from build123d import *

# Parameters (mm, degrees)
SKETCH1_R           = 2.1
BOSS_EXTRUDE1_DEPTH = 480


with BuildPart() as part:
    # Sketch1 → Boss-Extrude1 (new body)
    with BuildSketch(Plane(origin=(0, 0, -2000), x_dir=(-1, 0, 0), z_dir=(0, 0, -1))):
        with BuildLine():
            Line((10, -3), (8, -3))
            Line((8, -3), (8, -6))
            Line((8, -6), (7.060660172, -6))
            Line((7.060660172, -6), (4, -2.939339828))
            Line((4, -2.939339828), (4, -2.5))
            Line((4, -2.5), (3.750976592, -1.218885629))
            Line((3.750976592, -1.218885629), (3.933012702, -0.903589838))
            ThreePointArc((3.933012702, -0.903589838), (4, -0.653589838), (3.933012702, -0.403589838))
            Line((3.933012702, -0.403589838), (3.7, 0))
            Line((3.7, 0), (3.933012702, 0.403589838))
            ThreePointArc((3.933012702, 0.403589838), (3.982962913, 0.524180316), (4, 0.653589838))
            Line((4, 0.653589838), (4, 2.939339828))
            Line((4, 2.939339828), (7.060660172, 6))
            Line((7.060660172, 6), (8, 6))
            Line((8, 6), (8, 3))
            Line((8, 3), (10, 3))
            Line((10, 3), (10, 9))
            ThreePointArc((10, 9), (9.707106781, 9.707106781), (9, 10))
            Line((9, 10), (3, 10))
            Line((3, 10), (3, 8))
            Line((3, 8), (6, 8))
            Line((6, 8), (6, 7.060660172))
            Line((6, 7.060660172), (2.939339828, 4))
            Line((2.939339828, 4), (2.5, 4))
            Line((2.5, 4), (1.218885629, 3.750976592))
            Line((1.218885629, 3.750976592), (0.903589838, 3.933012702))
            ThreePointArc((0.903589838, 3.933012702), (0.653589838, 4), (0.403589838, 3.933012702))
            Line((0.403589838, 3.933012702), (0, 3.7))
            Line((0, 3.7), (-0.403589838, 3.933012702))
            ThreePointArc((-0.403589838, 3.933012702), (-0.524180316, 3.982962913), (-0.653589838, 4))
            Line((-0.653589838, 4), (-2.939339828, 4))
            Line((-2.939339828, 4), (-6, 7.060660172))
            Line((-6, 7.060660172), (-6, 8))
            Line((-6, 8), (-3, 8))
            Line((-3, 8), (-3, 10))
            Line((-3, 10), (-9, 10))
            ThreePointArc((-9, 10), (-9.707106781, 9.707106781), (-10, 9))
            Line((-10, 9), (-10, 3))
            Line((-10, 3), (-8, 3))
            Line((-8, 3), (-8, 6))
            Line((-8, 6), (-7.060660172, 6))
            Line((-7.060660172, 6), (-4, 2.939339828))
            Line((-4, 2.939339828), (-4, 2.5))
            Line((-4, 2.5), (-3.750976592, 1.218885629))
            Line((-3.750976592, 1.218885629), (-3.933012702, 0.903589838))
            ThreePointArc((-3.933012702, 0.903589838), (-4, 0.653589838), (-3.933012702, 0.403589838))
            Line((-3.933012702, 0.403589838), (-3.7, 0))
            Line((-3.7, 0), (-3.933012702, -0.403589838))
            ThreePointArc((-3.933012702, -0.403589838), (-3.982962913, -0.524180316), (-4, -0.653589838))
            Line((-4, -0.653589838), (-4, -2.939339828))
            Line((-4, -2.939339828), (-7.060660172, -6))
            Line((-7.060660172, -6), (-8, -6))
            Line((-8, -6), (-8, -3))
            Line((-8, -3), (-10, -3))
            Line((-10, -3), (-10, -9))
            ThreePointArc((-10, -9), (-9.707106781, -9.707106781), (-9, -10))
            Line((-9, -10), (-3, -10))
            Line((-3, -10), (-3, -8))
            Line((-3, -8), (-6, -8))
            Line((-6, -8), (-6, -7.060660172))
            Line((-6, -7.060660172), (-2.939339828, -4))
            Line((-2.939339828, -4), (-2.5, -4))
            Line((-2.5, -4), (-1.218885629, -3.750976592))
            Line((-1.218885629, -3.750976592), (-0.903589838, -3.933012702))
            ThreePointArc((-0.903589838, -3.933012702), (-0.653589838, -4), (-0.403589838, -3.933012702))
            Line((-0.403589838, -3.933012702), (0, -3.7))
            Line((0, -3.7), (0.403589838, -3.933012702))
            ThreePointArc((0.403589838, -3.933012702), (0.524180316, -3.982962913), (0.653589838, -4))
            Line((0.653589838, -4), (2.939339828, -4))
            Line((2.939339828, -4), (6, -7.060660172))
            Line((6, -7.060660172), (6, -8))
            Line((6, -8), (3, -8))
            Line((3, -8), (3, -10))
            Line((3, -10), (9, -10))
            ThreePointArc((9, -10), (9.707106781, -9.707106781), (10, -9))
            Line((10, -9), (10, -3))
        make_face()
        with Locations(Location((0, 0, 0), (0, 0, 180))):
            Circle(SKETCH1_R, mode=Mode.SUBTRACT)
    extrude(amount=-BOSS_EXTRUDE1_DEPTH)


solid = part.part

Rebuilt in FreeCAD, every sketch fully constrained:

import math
import FreeCAD as App
import Part
import Sketcher

V = App.Vector
Q = App.Units.Quantity

doc = App.newDocument("Part")
body = doc.addObject("PartDesign::Body", "Body")

sketch1 = body.newObject("Sketcher::SketchObject", "Sketch")
sketch1.AttachmentSupport = (doc.getObject("XY_Plane"), [""])
sketch1.MapMode = "FlatFace"
sketch1.AttachmentOffset = App.Placement(V(0, 0, -2000), App.Rotation())
sketch1.addGeometry([
    Part.LineSegment(V(-10, -3, 0), V(-8, -3, 0)),
    Part.LineSegment(V(-8, -3, 0), V(-8, -6, 0)),
    Part.LineSegment(V(-8, -6, 0), V(-7.06, -6, 0)),
    Part.LineSegment(V(-7.06, -6, 0), V(-4, -2.94, 0)),
    Part.LineSegment(V(-4, -2.94, 0), V(-4, -2.5, 0)),
    Part.LineSegment(V(-4, -2.5, 0), V(-3.75, -1.22, 0)),
    Part.LineSegment(V(-3.75, -1.22, 0), V(-3.93, -0.9, 0)),
    Part.ArcOfCircle(Part.Circle(V(-3.5, -0.65, 0), V(0, 0, 1), 0.5), math.radians(150), math.radians(210)),
    Part.LineSegment(V(-3.93, -0.4, 0), V(-3.7, 0, 0)),
    Part.LineSegment(V(-3.7, 0, 0), V(-3.93, 0.4, 0)),
    Part.ArcOfCircle(Part.Circle(V(-3.5, 0.65, 0), V(0, 0, 1), 0.5), math.radians(-180), math.radians(-150)),
    Part.LineSegment(V(-4, 0.65, 0), V(-4, 2.94, 0)),
    Part.LineSegment(V(-4, 2.94, 0), V(-7.06, 6, 0)),
    Part.LineSegment(V(-7.06, 6, 0), V(-8, 6, 0)),
    Part.LineSegment(V(-8, 6, 0), V(-8, 3, 0)),
    Part.LineSegment(V(-8, 3, 0), V(-10, 3, 0)),
    Part.LineSegment(V(-10, 3, 0), V(-10, 9, 0)),
    Part.ArcOfCircle(Part.Circle(V(-9, 9, 0), V(0, 0, 1), 1), math.radians(90), math.radians(180)),
    Part.LineSegment(V(-9, 10, 0), V(-3, 10, 0)),
    Part.LineSegment(V(-3, 10, 0), V(-3, 8, 0)),
    Part.LineSegment(V(-3, 8, 0), V(-6, 8, 0)),
    Part.LineSegment(V(-6, 8, 0), V(-6, 7.06, 0)),
    Part.LineSegment(V(-6, 7.06, 0), V(-2.94, 4, 0)),
    Part.LineSegment(V(-2.94, 4, 0), V(-2.5, 4, 0)),
    Part.LineSegment(V(-2.5, 4, 0), V(-1.22, 3.75, 0)),
    Part.LineSegment(V(-1.22, 3.75, 0), V(-0.9, 3.93, 0)),
    Part.ArcOfCircle(Part.Circle(V(-0.65, 3.5, 0), V(0, 0, 1), 0.5), math.radians(60), math.radians(120)),
    Part.LineSegment(V(-0.4, 3.93, 0), V(0, 3.7, 0)),
    Part.LineSegment(V(0, 3.7, 0), V(0.4, 3.93, 0)),
    Part.ArcOfCircle(Part.Circle(V(0.65, 3.5, 0), V(0, 0, 1), 0.5), math.radians(90), math.radians(120)),
    Part.LineSegment(V(0.65, 4, 0), V(2.94, 4, 0)),
    Part.LineSegment(V(2.94, 4, 0), V(6, 7.06, 0)),
    Part.LineSegment(V(6, 7.06, 0), V(6, 8, 0)),
    Part.LineSegment(V(6, 8, 0), V(3, 8, 0)),
    Part.LineSegment(V(3, 8, 0), V(3, 10, 0)),
    Part.LineSegment(V(3, 10, 0), V(9, 10, 0)),
    Part.ArcOfCircle(Part.Circle(V(9, 9, 0), V(0, 0, 1), 1), math.radians(0), math.radians(90)),
    Part.LineSegment(V(10, 9, 0), V(10, 3, 0)),
    Part.LineSegment(V(10, 3, 0), V(8, 3, 0)),
    Part.LineSegment(V(8, 3, 0), V(8, 6, 0)),
    Part.LineSegment(V(8, 6, 0), V(7.06, 6, 0)),
    Part.LineSegment(V(7.06, 6, 0), V(4, 2.94, 0)),
    Part.LineSegment(V(4, 2.94, 0), V(4, 2.5, 0)),
    Part.LineSegment(V(4, 2.5, 0), V(3.75, 1.22, 0)),
    Part.LineSegment(V(3.75, 1.22, 0), V(3.93, 0.9, 0)),
    Part.ArcOfCircle(Part.Circle(V(3.5, 0.65, 0), V(0, 0, 1), 0.5), math.radians(-30), math.radians(30)),
    Part.LineSegment(V(3.93, 0.4, 0), V(3.7, 0, 0)),
    Part.LineSegment(V(3.7, 0, 0), V(3.93, -0.4, 0)),
    Part.ArcOfCircle(Part.Circle(V(3.5, -0.65, 0), V(0, 0, 1), 0.5), math.radians(0), math.radians(30)),
    Part.LineSegment(V(4, -0.65, 0), V(4, -2.94, 0)),
    Part.LineSegment(V(4, -2.94, 0), V(7.06, -6, 0)),
    Part.LineSegment(V(7.06, -6, 0), V(8, -6, 0)),
    Part.LineSegment(V(8, -6, 0), V(8, -3, 0)),
    Part.LineSegment(V(8, -3, 0), V(10, -3, 0)),
    Part.LineSegment(V(10, -3, 0), V(10, -9, 0)),
    Part.ArcOfCircle(Part.Circle(V(9, -9, 0), V(0, 0, 1), 1), math.radians(-90), math.radians(0)),
    Part.LineSegment(V(9, -10, 0), V(3, -10, 0)),
    Part.LineSegment(V(3, -10, 0), V(3, -8, 0)),
    Part.LineSegment(V(3, -8, 0), V(6, -8, 0)),
    Part.LineSegment(V(6, -8, 0), V(6, -7.06, 0)),
    Part.LineSegment(V(6, -7.06, 0), V(2.94, -4, 0)),
    Part.LineSegment(V(2.94, -4, 0), V(2.5, -4, 0)),
    Part.LineSegment(V(2.5, -4, 0), V(1.22, -3.75, 0)),
    Part.LineSegment(V(1.22, -3.75, 0), V(0.9, -3.93, 0)),
    Part.ArcOfCircle(Part.Circle(V(0.65, -3.5, 0), V(0, 0, 1), 0.5), math.radians(-120), math.radians(-60)),
    Part.LineSegment(V(0.4, -3.93, 0), V(0, -3.7, 0)),
    Part.LineSegment(V(0, -3.7, 0), V(-0.4, -3.93, 0)),
    Part.ArcOfCircle(Part.Circle(V(-0.65, -3.5, 0), V(0, 0, 1), 0.5), math.radians(-90), math.radians(-60)),
    Part.LineSegment(V(-0.65, -4, 0), V(-2.94, -4, 0)),
    Part.LineSegment(V(-2.94, -4, 0), V(-6, -7.06, 0)),
    Part.LineSegment(V(-6, -7.06, 0), V(-6, -8, 0)),
    Part.LineSegment(V(-6, -8, 0), V(-3, -8, 0)),
    Part.LineSegment(V(-3, -8, 0), V(-3, -10, 0)),
    Part.LineSegment(V(-3, -10, 0), V(-9, -10, 0)),
    Part.ArcOfCircle(Part.Circle(V(-9, -9, 0), V(0, 0, 1), 1), math.radians(-180), math.radians(-90)),
    Part.LineSegment(V(-10, -9, 0), V(-10, -3, 0)),
    Part.Circle(V(0, 0, 0), V(0, 0, 1), 2.1),
], False)
sketch1.addConstraint([
    Sketcher.Constraint("Coincident", 0, 2, 1, 1),
    Sketcher.Constraint("Coincident", 1, 2, 2, 1),
    Sketcher.Constraint("Coincident", 2, 2, 3, 1),
    Sketcher.Constraint("Coincident", 3, 2, 4, 1),
    Sketcher.Constraint("Coincident", 4, 2, 5, 1),
    Sketcher.Constraint("Coincident", 5, 2, 6, 1),
    Sketcher.Constraint("Tangent", 6, 2, 7, 2),
    Sketcher.Constraint("Tangent", 7, 1, 8, 1),
    Sketcher.Constraint("Coincident", 8, 2, 9, 1),
    Sketcher.Constraint("Tangent", 9, 2, 10, 2),
    Sketcher.Constraint("Tangent", 10, 1, 11, 1),
    Sketcher.Constraint("Coincident", 11, 2, 12, 1),
    Sketcher.Constraint("Coincident", 12, 2, 13, 1),
    Sketcher.Constraint("Coincident", 13, 2, 14, 1),
    Sketcher.Constraint("Coincident", 14, 2, 15, 1),
    Sketcher.Constraint("Coincident", 15, 2, 16, 1),
    Sketcher.Constraint("Tangent", 16, 2, 17, 2),
    Sketcher.Constraint("Tangent", 17, 1, 18, 1),
    Sketcher.Constraint("Coincident", 18, 2, 19, 1),
    Sketcher.Constraint("Coincident", 19, 2, 20, 1),
    Sketcher.Constraint("Coincident", 20, 2, 21, 1),
    Sketcher.Constraint("Coincident", 21, 2, 22, 1),
    Sketcher.Constraint("Coincident", 22, 2, 23, 1),
    Sketcher.Constraint("Coincident", 23, 2, 24, 1),
    Sketcher.Constraint("Coincident", 24, 2, 25, 1),
    Sketcher.Constraint("Tangent", 25, 2, 26, 2),
    Sketcher.Constraint("Tangent", 26, 1, 27, 1),
    Sketcher.Constraint("Coincident", 27, 2, 28, 1),
    Sketcher.Constraint("Tangent", 28, 2, 29, 2),
    Sketcher.Constraint("Tangent", 29, 1, 30, 1),
    Sketcher.Constraint("Coincident", 30, 2, 31, 1),
    Sketcher.Constraint("Coincident", 31, 2, 32, 1),
    Sketcher.Constraint("Coincident", 32, 2, 33, 1),
    Sketcher.Constraint("Coincident", 33, 2, 34, 1),
    Sketcher.Constraint("Coincident", 34, 2, 35, 1),
    Sketcher.Constraint("Tangent", 35, 2, 36, 2),
    Sketcher.Constraint("Tangent", 36, 1, 37, 1),
    Sketcher.Constraint("Coincident", 37, 2, 38, 1),
    Sketcher.Constraint("Coincident", 38, 2, 39, 1),
    Sketcher.Constraint("Coincident", 39, 2, 40, 1),
    Sketcher.Constraint("Coincident", 40, 2, 41, 1),
    Sketcher.Constraint("Coincident", 41, 2, 42, 1),
    Sketcher.Constraint("Coincident", 42, 2, 43, 1),
    Sketcher.Constraint("Coincident", 43, 2, 44, 1),
    Sketcher.Constraint("Tangent", 44, 2, 45, 2),
    Sketcher.Constraint("Tangent", 45, 1, 46, 1),
    Sketcher.Constraint("Coincident", 46, 2, 47, 1),
    Sketcher.Constraint("Tangent", 47, 2, 48, 2),
    Sketcher.Constraint("Tangent", 48, 1, 49, 1),
    Sketcher.Constraint("Coincident", 49, 2, 50, 1),
    Sketcher.Constraint("Coincident", 50, 2, 51, 1),
    Sketcher.Constraint("Coincident", 51, 2, 52, 1),
    Sketcher.Constraint("Coincident", 52, 2, 53, 1),
    Sketcher.Constraint("Coincident", 53, 2, 54, 1),
    Sketcher.Constraint("Tangent", 54, 2, 55, 2),
    Sketcher.Constraint("Tangent", 55, 1, 56, 1),
    Sketcher.Constraint("Coincident", 56, 2, 57, 1),
    Sketcher.Constraint("Coincident", 57, 2, 58, 1),
    Sketcher.Constraint("Coincident", 58, 2, 59, 1),
    Sketcher.Constraint("Coincident", 59, 2, 60, 1),
    Sketcher.Constraint("Coincident", 60, 2, 61, 1),
    Sketcher.Constraint("Coincident", 61, 2, 62, 1),
    Sketcher.Constraint("Coincident", 62, 2, 63, 1),
    Sketcher.Constraint("Tangent", 63, 2, 64, 2),
    Sketcher.Constraint("Tangent", 64, 1, 65, 1),
    Sketcher.Constraint("Coincident", 65, 2, 66, 1),
    Sketcher.Constraint("Tangent", 66, 2, 67, 2),
    Sketcher.Constraint("Tangent", 67, 1, 68, 1),
    Sketcher.Constraint("Coincident", 68, 2, 69, 1),
    Sketcher.Constraint("Coincident", 69, 2, 70, 1),
    Sketcher.Constraint("Coincident", 70, 2, 71, 1),
    Sketcher.Constraint("Coincident", 71, 2, 72, 1),
    Sketcher.Constraint("Coincident", 72, 2, 73, 1),
    Sketcher.Constraint("Tangent", 73, 2, 74, 2),
    Sketcher.Constraint("Tangent", 74, 1, 75, 1),
    Sketcher.Constraint("Coincident", 75, 2, 0, 1),
    Sketcher.Constraint("Horizontal", 0),
    Sketcher.Constraint("Vertical", 1),
    Sketcher.Constraint("Horizontal", 2),
    Sketcher.Constraint("Vertical", 4),
    Sketcher.Constraint("Vertical", 11),
    Sketcher.Constraint("Horizontal", 13),
    Sketcher.Constraint("Vertical", 14),
    Sketcher.Constraint("Horizontal", 15),
    Sketcher.Constraint("Vertical", 16),
    Sketcher.Constraint("Horizontal", 18),
    Sketcher.Constraint("Vertical", 19),
    Sketcher.Constraint("Horizontal", 20),
    Sketcher.Constraint("Vertical", 21),
    Sketcher.Constraint("Horizontal", 23),
    Sketcher.Constraint("Horizontal", 30),
    Sketcher.Constraint("Vertical", 32),
    Sketcher.Constraint("Horizontal", 33),
    Sketcher.Constraint("Vertical", 34),
    Sketcher.Constraint("Horizontal", 35),
    Sketcher.Constraint("Vertical", 37),
    Sketcher.Constraint("Horizontal", 38),
    Sketcher.Constraint("Vertical", 39),
    Sketcher.Constraint("Horizontal", 40),
    Sketcher.Constraint("Vertical", 42),
    Sketcher.Constraint("Vertical", 49),
    Sketcher.Constraint("Horizontal", 51),
    Sketcher.Constraint("Vertical", 52),
    Sketcher.Constraint("Horizontal", 53),
    Sketcher.Constraint("Vertical", 54),
    Sketcher.Constraint("Horizontal", 56),
    Sketcher.Constraint("Vertical", 57),
    Sketcher.Constraint("Horizontal", 58),
    Sketcher.Constraint("Vertical", 59),
    Sketcher.Constraint("Horizontal", 61),
    Sketcher.Constraint("Horizontal", 68),
    Sketcher.Constraint("Vertical", 70),
    Sketcher.Constraint("Horizontal", 71),
    Sketcher.Constraint("Vertical", 72),
    Sketcher.Constraint("Horizontal", 73),
    Sketcher.Constraint("Vertical", 75),
    Sketcher.Constraint("Coincident", 76, 3, -1, 1),
    Sketcher.Constraint("Equal", 7, 10),
    Sketcher.Constraint("Equal", 10, 26),
    Sketcher.Constraint("Equal", 26, 29),
    Sketcher.Constraint("Equal", 17, 36),
    Sketcher.Constraint("Equal", 29, 45),
    Sketcher.Constraint("Equal", 45, 48),
    Sketcher.Constraint("Equal", 36, 55),
    Sketcher.Constraint("Equal", 48, 64),
    Sketcher.Constraint("Equal", 64, 67),
    Sketcher.Constraint("Equal", 55, 74),
    Sketcher.Constraint("Symmetric", 7, 3, 45, 3, -1, 1),
    Sketcher.Constraint("Symmetric", 10, 3, 48, 3, -1, 1),
    Sketcher.Constraint("Symmetric", 17, 3, 55, 3, -1, 1),
    Sketcher.Constraint("Symmetric", 26, 3, 64, 3, -1, 1),
    Sketcher.Constraint("Symmetric", 29, 3, 67, 3, -1, 1),
    Sketcher.Constraint("Symmetric", 36, 3, 74, 3, -1, 1),
    Sketcher.Constraint("Symmetric", 0, 2, 38, 2, -1, 1),
    Sketcher.Constraint("Symmetric", 2, 2, 40, 2, -1, 1),
    Sketcher.Constraint("Symmetric", 3, 2, 41, 2, -1, 1),
    Sketcher.Constraint("Symmetric", 5, 2, 43, 2, -1, 1),
    Sketcher.Constraint("Symmetric", 8, 2, 46, 2, -1, 1),
    Sketcher.Constraint("Symmetric", 12, 2, 50, 2, -1, 1),
    Sketcher.Constraint("Symmetric", 14, 2, 52, 2, -1, 1),
    Sketcher.Constraint("Symmetric", 19, 2, 57, 2, -1, 1),
    Sketcher.Constraint("Symmetric", 21, 2, 59, 2, -1, 1),
    Sketcher.Constraint("Symmetric", 22, 2, 60, 2, -1, 1),
    Sketcher.Constraint("Symmetric", 24, 2, 62, 2, -1, 1),
    Sketcher.Constraint("Symmetric", 27, 2, 65, 2, -1, 1),
    Sketcher.Constraint("Symmetric", 31, 2, 69, 2, -1, 1),
    Sketcher.Constraint("Symmetric", 33, 2, 71, 2, -1, 1),
    Sketcher.Constraint("Symmetric", 26, 3, 29, 3, -2),
    Sketcher.Constraint("Symmetric", 17, 3, 36, 3, -2),
    Sketcher.Constraint("Symmetric", 10, 3, 45, 3, -2),
    Sketcher.Constraint("Symmetric", 22, 2, 30, 2, -2),
    Sketcher.Constraint("Symmetric", 21, 2, 31, 2, -2),
    Sketcher.Constraint("Symmetric", 19, 2, 33, 2, -2),
    Sketcher.Constraint("Symmetric", 14, 2, 38, 2, -2),
    Sketcher.Constraint("Symmetric", 12, 2, 40, 2, -2),
    Sketcher.Constraint("Symmetric", 11, 2, 41, 2, -2),
    Sketcher.Constraint("PointOnObject", 8, 2, -1),
    Sketcher.Constraint("PointOnObject", 27, 2, -2),
    Sketcher.Constraint("Parallel", 6, 9),
    Sketcher.Constraint("Perpendicular", 3, 12),
    Sketcher.Constraint("Parallel", 12, 22),
    Sketcher.Constraint("Perpendicular", 5, 24),
    Sketcher.Constraint("Perpendicular", 9, 25),
    Sketcher.Constraint("Perpendicular", 8, 27),
    Sketcher.Constraint("Perpendicular", 24, 43),
    Sketcher.Constraint("Perpendicular", 41, 50),
    Sketcher.Constraint("Perpendicular", 43, 62),
    Sketcher.Constraint("Perpendicular", 60, 69),
    Sketcher.Constraint("Equal", 71, 1),
    Sketcher.Constraint("Equal", 61, 4),
    Sketcher.Constraint("Equal", 68, 11),
    Sketcher.Constraint("Equal", 73, 16),
    Sketcher.Constraint("Equal", 53, 19),
    Sketcher.Constraint("Equal", 51, 21),
    Sketcher.Constraint("Equal", 12, 22),
    Sketcher.Constraint("Equal", 9, 27),
    Sketcher.Constraint("Radius", 17, Q("1 mm")),
    Sketcher.Constraint("Diameter", 76, Q("4.2 mm")),
    Sketcher.Constraint("Radius", 7, Q("0.5 mm")),
    Sketcher.Constraint("DistanceX", 0, 1, 0, 2, Q("2 mm")),
    Sketcher.Constraint("DistanceX", 18, 1, 18, 2, Q("6 mm")),
    Sketcher.Constraint("DistanceX", 20, 2, 20, 1, Q("3 mm")),
    Sketcher.Constraint("Angle", 5, Q("79 deg")),
    Sketcher.Constraint("Angle", 6, Q("120 deg")),
    Sketcher.Constraint("DistanceX", 17, 3, -1, 1, Q("9 mm")),
    Sketcher.Constraint("DistanceX", 3, 2, -1, 1, Q("4 mm")),
    Sketcher.Constraint("DistanceY", 4, 2, -1, 1, Q("2.5 mm")),
    Sketcher.Constraint("DistanceX", 8, 2, -1, 1, Q("3.7 mm")),
    Sketcher.Constraint("DistanceX", 2, 1, 2, 2, Q("0.93934 mm")),
])
pad1 = body.newObject("PartDesign::Pad", "Pad")
pad1.Profile = sketch1
pad1.Length = 480

doc.recompute()
